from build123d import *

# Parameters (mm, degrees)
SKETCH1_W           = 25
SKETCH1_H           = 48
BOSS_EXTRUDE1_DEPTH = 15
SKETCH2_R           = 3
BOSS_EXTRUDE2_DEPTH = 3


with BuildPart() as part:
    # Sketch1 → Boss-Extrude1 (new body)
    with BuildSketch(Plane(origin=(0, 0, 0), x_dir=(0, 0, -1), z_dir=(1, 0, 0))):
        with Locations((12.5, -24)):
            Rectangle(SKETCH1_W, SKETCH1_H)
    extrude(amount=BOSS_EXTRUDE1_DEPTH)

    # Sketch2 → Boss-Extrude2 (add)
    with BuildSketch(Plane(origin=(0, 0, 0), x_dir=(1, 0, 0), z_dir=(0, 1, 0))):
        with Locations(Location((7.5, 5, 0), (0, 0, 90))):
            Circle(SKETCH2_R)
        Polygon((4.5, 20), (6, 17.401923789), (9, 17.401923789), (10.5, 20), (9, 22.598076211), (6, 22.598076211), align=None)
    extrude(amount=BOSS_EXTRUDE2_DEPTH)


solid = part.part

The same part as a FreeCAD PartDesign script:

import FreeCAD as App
import Part
import Sketcher
Q = App.Units.Quantity

doc = App.newDocument("Part")
body = doc.addObject("PartDesign::Body", "Body")

# Sketch on YZ plane
sketch1 = body.newObject("Sketcher::SketchObject", "Sketch")
sketch1.AttachmentSupport = (doc.getObject("YZ_Plane"), [""])
sketch1.MapMode = "FlatFace"
sketch1.addGeometry([
    Part.LineSegment(App.Vector(0, 0, 0), App.Vector(-48, 0, 0)),
    Part.LineSegment(App.Vector(-48, 0, 0), App.Vector(-48, -25, 0)),
    Part.LineSegment(App.Vector(-48, -25, 0), App.Vector(0, -25, 0)),
    Part.LineSegment(App.Vector(0, -25, 0), App.Vector(0, 0, 0)),
], False)
sketch1.addConstraint([
    Sketcher.Constraint("Coincident", 0, 2, 1, 1),
    Sketcher.Constraint("Coincident", 1, 2, 2, 1),
    Sketcher.Constraint("Coincident", 2, 2, 3, 1),
    Sketcher.Constraint("Coincident", 3, 2, 0, 1),
    Sketcher.Constraint("Horizontal", 0),
    Sketcher.Constraint("Vertical", 1),
    Sketcher.Constraint("Horizontal", 2),
    Sketcher.Constraint("Vertical", 3),
    Sketcher.Constraint("Coincident", 3, 2, -1, 1),
    Sketcher.Constraint("DistanceX", 0, 2, 0, 1, Q("48 mm")),
    Sketcher.Constraint("DistanceY", 1, 2, 1, 1, Q("25 mm")),
])
pad1 = body.newObject("PartDesign::Pad", "Pad")
pad1.Profile = sketch1
pad1.Length = 15

# Sketch on XZ plane
sketch2 = body.newObject("Sketcher::SketchObject", "Sketch001")
sketch2.AttachmentSupport = (doc.getObject("XZ_Plane"), [""])
sketch2.MapMode = "FlatFace"
sketch2.addGeometry([
    Part.Circle(App.Vector(7.5, -5, 0), App.Vector(0, 0, 1), 3),  # 0
    Part.LineSegment(App.Vector(4.5, -20, 0), App.Vector(6, -17.4, 0)),  # 1
    Part.LineSegment(App.Vector(6, -17.4, 0), App.Vector(9, -17.4, 0)),  # 2
    Part.LineSegment(App.Vector(9, -17.4, 0), App.Vector(10.5, -20, 0)),  # 3
    Part.LineSegment(App.Vector(10.5, -20, 0), App.Vector(9, -22.6, 0)),  # 4
    Part.LineSegment(App.Vector(9, -22.6, 0), App.Vector(6, -22.6, 0)),  # 5
    Part.LineSegment(App.Vector(6, -22.6, 0), App.Vector(4.5, -20, 0)),  # 6
], False)
sketch2.addConstraint([
    Sketcher.Constraint("Coincident", 1, 2, 2, 1),
    Sketcher.Constraint("Coincident", 2, 2, 3, 1),
    Sketcher.Constraint("Coincident", 3, 2, 4, 1),
    Sketcher.Constraint("Coincident", 4, 2, 5, 1),
    Sketcher.Constraint("Coincident", 5, 2, 6, 1),
    Sketcher.Constraint("Coincident", 6, 2, 1, 1),
    Sketcher.Constraint("Horizontal", 2),
    Sketcher.Constraint("Horizontal", 5),
    Sketcher.Constraint("Parallel", 1, 4),
    Sketcher.Constraint("Parallel", 3, 6),
    Sketcher.Constraint("Horizontal", 3, 2, 6, 2),
    Sketcher.Constraint("Vertical", 2, 2, 4, 2),
    Sketcher.Constraint("Vertical", 1, 2, 5, 2),
    Sketcher.Constraint("Diameter", 0, Q("6 mm")),
    Sketcher.Constraint("DistanceX", 2, 1, 2, 2, Q("3 mm")),
    Sketcher.Constraint("Angle", 1, Q("60 deg")),
    Sketcher.Constraint("Distance", 1, Q("3 mm")),
    Sketcher.Constraint("DistanceY", 0, 3, -1, 1, Q("5 mm")),
    Sketcher.Constraint("DistanceX", -1, 1, 1, 2, Q("6 mm")),
    Sketcher.Constraint("DistanceY", 3, 2, -1, 1, Q("20 mm")),
    Sketcher.Constraint("DistanceX", 0, 3, 3, 2, Q("3 mm")),
])
pad2 = body.newObject("PartDesign::Pad", "Pad001")
pad2.Profile = sketch2
pad2.Length = 3
pad2.Reversed = True

doc.recompute()
